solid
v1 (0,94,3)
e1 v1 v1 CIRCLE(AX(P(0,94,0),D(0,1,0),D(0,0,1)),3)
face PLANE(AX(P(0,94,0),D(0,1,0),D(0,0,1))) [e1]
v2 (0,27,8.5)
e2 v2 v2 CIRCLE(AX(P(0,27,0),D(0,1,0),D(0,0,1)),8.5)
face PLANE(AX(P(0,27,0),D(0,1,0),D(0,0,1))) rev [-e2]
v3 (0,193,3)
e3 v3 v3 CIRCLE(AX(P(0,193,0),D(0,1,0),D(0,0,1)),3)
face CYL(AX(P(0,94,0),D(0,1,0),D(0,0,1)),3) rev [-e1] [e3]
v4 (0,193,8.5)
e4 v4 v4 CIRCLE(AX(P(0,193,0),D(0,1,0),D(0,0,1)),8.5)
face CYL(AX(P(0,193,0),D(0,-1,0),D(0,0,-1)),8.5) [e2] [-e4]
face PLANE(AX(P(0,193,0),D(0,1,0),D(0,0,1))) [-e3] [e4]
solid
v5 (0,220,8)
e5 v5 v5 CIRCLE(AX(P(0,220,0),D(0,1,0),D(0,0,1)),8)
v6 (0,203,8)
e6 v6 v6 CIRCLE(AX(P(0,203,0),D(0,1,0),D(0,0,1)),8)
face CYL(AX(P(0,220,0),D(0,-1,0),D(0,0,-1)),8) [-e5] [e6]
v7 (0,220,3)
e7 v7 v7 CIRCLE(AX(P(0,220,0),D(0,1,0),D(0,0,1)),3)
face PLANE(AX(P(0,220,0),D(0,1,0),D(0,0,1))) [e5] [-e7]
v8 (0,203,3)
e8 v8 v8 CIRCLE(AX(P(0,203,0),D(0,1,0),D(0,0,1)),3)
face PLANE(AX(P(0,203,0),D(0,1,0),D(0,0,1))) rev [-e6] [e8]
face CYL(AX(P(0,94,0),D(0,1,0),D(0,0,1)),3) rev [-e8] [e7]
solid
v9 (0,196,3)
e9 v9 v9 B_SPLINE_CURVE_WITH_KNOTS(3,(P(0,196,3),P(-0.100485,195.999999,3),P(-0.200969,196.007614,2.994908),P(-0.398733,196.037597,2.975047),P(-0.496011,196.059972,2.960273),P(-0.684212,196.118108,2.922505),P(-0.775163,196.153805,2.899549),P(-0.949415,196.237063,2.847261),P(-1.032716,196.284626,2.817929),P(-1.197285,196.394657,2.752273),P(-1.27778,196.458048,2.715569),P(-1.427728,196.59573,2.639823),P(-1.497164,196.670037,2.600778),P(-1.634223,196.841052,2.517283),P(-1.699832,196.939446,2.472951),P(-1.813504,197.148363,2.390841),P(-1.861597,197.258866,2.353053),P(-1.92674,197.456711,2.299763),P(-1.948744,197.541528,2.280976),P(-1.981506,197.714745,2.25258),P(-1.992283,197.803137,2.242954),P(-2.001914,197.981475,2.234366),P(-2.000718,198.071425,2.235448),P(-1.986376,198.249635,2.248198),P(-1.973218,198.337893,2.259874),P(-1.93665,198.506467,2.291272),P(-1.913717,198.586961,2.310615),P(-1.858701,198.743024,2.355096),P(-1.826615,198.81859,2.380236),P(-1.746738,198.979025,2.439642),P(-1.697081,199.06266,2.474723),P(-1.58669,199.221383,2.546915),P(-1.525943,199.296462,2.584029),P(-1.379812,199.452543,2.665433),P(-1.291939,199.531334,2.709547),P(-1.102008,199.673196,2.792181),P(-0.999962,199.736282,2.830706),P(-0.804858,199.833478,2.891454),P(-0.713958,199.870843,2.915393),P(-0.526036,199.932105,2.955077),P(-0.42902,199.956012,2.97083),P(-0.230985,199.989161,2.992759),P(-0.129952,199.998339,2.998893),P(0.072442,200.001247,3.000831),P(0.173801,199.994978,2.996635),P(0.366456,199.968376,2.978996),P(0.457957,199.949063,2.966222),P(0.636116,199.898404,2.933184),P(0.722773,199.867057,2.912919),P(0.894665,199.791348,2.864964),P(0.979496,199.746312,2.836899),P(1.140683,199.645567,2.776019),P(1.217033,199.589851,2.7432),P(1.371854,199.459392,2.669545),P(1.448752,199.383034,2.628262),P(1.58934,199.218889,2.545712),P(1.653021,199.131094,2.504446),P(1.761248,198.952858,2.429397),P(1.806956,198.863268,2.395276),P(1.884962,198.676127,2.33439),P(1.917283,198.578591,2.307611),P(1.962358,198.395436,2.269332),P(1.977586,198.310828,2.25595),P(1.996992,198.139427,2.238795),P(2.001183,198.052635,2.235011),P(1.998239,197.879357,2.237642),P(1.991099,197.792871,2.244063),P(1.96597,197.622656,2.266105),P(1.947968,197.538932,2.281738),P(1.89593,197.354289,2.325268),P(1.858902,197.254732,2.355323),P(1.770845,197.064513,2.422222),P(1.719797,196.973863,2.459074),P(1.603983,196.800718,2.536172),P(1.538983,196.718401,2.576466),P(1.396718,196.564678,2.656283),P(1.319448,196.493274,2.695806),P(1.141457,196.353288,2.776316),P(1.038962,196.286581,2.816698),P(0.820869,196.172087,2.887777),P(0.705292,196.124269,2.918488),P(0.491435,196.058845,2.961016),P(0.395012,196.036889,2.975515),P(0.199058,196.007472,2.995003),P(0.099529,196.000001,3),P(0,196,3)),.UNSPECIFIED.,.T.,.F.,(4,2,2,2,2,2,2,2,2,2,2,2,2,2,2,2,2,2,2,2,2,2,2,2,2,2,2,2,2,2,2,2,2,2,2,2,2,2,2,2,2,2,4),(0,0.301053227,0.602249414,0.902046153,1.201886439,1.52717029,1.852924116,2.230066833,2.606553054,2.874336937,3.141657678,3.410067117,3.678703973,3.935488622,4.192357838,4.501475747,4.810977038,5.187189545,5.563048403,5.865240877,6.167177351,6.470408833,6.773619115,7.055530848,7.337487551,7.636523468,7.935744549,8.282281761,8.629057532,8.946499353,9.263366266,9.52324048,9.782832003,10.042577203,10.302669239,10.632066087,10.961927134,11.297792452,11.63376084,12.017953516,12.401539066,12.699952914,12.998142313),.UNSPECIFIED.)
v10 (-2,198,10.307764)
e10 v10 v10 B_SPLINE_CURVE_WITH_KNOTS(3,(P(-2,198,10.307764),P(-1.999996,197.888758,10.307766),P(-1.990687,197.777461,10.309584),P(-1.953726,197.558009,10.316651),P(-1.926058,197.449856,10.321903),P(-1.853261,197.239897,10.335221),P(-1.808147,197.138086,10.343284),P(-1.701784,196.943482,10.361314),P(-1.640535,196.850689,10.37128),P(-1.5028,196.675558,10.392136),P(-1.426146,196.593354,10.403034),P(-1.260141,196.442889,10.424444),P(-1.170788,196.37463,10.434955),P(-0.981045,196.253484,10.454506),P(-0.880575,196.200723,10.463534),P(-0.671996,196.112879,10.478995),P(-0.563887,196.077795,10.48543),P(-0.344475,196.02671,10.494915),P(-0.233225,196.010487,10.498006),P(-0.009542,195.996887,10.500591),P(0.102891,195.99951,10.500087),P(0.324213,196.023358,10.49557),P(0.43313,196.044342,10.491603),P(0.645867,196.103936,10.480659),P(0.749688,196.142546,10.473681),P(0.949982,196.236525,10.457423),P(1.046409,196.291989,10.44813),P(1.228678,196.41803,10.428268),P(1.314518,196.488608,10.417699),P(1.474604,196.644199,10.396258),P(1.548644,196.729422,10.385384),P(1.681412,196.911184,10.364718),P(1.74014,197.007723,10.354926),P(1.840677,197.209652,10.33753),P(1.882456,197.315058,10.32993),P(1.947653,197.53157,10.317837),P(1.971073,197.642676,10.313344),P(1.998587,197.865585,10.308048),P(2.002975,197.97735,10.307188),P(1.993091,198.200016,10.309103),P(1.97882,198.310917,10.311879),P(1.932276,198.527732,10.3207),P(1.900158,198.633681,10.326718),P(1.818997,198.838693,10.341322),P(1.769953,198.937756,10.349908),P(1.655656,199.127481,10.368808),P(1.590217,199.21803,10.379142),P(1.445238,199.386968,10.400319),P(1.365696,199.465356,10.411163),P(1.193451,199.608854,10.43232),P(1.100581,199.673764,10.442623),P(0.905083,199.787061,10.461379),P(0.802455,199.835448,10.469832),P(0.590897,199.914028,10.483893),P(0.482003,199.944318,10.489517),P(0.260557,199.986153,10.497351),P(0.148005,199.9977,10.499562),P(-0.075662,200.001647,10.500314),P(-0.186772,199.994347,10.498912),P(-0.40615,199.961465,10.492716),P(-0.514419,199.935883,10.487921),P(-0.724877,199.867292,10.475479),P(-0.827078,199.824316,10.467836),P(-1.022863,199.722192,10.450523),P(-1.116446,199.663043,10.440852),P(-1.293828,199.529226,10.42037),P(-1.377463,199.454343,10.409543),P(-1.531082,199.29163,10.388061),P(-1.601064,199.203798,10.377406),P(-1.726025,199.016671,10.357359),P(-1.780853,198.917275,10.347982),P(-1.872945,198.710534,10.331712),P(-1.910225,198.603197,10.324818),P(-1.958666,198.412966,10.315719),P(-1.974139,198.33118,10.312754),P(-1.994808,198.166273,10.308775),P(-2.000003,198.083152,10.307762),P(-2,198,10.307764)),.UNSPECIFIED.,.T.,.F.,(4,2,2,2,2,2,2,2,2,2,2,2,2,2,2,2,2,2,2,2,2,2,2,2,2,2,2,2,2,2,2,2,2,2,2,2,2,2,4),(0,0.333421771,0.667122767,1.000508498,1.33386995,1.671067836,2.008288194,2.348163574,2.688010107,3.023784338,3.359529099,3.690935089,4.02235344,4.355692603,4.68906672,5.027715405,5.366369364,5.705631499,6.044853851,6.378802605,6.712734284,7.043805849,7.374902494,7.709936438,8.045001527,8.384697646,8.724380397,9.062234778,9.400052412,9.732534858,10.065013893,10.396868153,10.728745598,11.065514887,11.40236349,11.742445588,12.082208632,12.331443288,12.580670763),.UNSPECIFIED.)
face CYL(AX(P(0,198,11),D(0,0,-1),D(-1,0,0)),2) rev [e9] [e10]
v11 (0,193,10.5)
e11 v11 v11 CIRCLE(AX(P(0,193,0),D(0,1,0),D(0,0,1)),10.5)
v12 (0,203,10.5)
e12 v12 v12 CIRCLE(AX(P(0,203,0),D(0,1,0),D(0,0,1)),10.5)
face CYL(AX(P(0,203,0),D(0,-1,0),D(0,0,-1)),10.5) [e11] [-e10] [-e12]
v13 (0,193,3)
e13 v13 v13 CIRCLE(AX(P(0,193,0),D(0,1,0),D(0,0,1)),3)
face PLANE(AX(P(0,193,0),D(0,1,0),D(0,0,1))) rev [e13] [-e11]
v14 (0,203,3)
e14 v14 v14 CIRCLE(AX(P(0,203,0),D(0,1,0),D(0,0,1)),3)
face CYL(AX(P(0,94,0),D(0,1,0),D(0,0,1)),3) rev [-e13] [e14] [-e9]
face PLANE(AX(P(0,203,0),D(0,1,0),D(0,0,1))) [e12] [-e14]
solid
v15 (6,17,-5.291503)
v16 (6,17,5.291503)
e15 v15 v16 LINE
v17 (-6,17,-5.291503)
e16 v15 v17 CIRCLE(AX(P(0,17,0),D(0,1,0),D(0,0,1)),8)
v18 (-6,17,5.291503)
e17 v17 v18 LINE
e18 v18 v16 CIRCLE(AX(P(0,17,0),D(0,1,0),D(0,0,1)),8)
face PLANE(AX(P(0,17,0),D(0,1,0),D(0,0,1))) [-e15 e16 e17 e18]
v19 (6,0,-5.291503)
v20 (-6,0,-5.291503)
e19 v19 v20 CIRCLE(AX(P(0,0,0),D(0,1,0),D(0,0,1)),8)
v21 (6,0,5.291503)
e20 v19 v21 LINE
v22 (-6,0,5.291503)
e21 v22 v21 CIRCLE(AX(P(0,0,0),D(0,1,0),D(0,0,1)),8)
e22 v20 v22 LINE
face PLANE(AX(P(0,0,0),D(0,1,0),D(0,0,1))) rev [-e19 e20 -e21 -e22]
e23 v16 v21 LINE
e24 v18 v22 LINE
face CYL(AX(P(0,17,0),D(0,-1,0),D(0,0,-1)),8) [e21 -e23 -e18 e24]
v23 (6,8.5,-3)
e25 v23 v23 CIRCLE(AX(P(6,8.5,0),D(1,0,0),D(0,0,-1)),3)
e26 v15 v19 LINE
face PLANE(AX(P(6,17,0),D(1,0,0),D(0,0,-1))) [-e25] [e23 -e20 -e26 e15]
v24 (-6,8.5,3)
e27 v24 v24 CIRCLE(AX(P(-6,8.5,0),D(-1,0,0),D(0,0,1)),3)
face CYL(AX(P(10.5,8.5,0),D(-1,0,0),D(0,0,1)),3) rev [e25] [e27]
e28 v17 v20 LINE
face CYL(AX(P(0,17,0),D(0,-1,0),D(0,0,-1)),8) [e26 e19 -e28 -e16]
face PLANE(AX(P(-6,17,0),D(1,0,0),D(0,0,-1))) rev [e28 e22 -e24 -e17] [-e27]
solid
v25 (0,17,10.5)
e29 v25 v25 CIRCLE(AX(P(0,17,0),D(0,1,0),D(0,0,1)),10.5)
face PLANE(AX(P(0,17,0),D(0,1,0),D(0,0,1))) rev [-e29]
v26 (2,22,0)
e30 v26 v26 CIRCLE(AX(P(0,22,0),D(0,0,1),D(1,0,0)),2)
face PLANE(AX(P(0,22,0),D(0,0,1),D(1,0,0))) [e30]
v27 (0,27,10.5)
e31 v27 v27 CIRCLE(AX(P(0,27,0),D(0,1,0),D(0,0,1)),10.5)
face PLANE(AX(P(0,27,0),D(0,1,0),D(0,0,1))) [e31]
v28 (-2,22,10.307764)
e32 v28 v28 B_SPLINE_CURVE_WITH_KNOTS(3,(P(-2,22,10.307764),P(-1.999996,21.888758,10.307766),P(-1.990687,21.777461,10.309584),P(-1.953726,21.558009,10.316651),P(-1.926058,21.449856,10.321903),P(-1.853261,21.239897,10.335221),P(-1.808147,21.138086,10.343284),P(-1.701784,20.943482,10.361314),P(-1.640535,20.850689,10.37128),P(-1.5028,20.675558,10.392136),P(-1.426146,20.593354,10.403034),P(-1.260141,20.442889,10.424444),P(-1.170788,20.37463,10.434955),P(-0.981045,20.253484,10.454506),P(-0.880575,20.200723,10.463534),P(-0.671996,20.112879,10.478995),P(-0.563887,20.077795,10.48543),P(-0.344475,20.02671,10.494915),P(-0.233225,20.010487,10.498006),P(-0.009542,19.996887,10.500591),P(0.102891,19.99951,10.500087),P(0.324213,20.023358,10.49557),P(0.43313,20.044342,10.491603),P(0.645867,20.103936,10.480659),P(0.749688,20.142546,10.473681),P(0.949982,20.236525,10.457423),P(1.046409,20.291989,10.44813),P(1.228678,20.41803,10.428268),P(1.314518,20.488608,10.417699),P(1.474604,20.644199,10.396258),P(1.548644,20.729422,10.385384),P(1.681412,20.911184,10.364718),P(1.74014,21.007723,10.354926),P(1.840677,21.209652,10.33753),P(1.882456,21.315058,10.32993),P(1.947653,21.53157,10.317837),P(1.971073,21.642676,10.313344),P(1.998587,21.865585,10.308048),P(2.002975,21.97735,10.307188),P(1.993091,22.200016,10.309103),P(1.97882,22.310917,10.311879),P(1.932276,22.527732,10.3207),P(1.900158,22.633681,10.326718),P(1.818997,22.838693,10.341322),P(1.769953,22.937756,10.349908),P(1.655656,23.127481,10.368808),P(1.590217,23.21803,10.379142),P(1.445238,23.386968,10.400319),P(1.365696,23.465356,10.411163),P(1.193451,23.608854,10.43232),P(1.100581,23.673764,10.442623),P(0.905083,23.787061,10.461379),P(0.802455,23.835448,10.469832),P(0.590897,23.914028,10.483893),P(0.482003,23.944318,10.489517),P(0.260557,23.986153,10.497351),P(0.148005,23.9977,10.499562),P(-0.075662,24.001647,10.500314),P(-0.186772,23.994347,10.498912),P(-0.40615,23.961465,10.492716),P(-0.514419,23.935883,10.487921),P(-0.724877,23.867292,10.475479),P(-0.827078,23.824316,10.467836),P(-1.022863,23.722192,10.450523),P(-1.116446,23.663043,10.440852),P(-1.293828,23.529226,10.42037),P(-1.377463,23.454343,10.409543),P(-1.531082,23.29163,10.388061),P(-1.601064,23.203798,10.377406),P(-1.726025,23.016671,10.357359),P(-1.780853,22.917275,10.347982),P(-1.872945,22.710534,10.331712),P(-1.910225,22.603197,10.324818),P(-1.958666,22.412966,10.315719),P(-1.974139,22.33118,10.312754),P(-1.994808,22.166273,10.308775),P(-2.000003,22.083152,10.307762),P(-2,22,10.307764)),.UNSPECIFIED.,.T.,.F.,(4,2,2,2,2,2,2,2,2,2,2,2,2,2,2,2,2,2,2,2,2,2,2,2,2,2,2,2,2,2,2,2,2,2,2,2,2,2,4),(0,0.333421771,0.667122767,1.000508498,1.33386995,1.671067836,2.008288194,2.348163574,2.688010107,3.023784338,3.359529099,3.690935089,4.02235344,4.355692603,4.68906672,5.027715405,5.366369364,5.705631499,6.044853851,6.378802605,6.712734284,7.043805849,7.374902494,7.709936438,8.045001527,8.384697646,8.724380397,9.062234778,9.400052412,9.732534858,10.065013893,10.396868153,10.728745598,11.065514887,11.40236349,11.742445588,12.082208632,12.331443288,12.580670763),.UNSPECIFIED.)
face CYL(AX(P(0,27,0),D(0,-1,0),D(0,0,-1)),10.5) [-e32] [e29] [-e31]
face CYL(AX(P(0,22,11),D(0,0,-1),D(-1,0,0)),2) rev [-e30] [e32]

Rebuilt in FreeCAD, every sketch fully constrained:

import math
import FreeCAD as App
import Part
import Sketcher

V = App.Vector

doc = App.newDocument("Part")
params = doc.addObject("Spreadsheet::Sheet", "Params")
for row, (alias, value) in enumerate([
    ("sketch1_diameter", "16 mm"),
    ("pad1_length", "17 mm"),
    ("sketch2_radius", "8 mm"),
    ("pocket1_length", "17 mm"),
    ("sketch3_diameter", "6 mm"),
    ("sketch4_diameter", "21 mm"),
    ("pad2_length", "10 mm"),
    ("sketch5_diameter", "17 mm"),
    ("pad3_length", "166 mm"),
    ("sketch6_diameter", "21 mm"),
    ("pad4_length", "10 mm"),
    ("sketch7_diameter", "16 mm"),
    ("pad5_length", "17 mm"),
    ("sketch8_diameter", "6 mm"),
    ("pad6_length", "126 mm"),
    ("sketch9_diameter", "4 mm"),
    ("pad7_length", "11 mm"),
], start=1):
    params.set(f"A{row}", alias)
    params.set(f"B{row}", "=" + value)
    params.setAlias(f"B{row}", alias)

body = doc.addObject("PartDesign::Body", "Body")

# Sketch on XZ plane
sketch1 = body.newObject("Sketcher::SketchObject", "Sketch")
sketch1.AttachmentSupport = (doc.getObject("XZ_Plane"), [""])
sketch1.MapMode = "FlatFace"
sketch1.addGeometry(Part.Circle(V(0, 0, 0), V(0, 0, 1), 8), False)
sketch1.addConstraint([
    Sketcher.Constraint("Coincident", 0, 3, -1, 1),
    Sketcher.Constraint("Diameter", 0, 16.0),
])
sketch1.setExpression("Constraints[1]", "Params.sketch1_diameter")
pad1 = body.newObject("PartDesign::Pad", "Pad")
pad1.Profile = sketch1
pad1.setExpression("Length", "Params.pad1_length")
pad1.Reversed = True

# Sketch on XZ plane
sketch2 = body.newObject("Sketcher::SketchObject", "Sketch001")
sketch2.AttachmentSupport = (doc.getObject("XZ_Plane"), [""])
sketch2.MapMode = "FlatFace"
sketch2.addGeometry([
    Part.ArcOfCircle(Part.Circle(V(0, 0, 0), V(0, 0, 1), 8), math.radians(138.590378), math.radians(221.409622)),  # 0
    Part.LineSegment(V(-6, -5.291503, 0), V(-6, 5.291503, 0)),  # 1
    Part.LineSegment(V(6, 5.291503, 0), V(6, -5.291503, 0)),  # 2
    Part.ArcOfCircle(Part.Circle(V(0, 0, 0), V(0, 0, 1), 8), math.radians(-41.409622), math.radians(0)),  # 3
    Part.ArcOfCircle(Part.Circle(V(0, 0, 0), V(0, 0, 1), 8), math.radians(0), math.radians(41.409622)),  # 4
], False)
sketch2.addConstraint([
    Sketcher.Constraint("Coincident", 0, 1, 1, 2),
    Sketcher.Constraint("Coincident", 1, 1, 0, 2),
    Sketcher.Constraint("Coincident", 2, 2, 3, 1),
    Sketcher.Constraint("Tangent", 3, 2, 4, 1),
    Sketcher.Constraint("Coincident", 4, 2, 2, 1),
    Sketcher.Constraint("Vertical", 1),
    Sketcher.Constraint("Vertical", 2),
    Sketcher.Constraint("Coincident", 0, 3, -1, 1),
    Sketcher.Constraint("Coincident", 3, 3, -1, 1),
    Sketcher.Constraint("Equal", 0, 3),
    Sketcher.Constraint("Equal", 3, 4),
    Sketcher.Constraint("PointOnObject", 3, 2, -1),
    Sketcher.Constraint("Horizontal", 1, 1, 2, 2),
    Sketcher.Constraint("Radius", 0, 8.0),
    Sketcher.Constraint("DistanceX", 0, 1, -1, 1, 6.0),
])
sketch2.setExpression("Constraints[13]", "Params.sketch2_radius")
pocket1 = body.newObject("PartDesign::Pocket", "Pocket")
pocket1.Profile = sketch2
pocket1.setExpression("Length", "Params.pocket1_length")

# Sketch on YZ plane
sketch3 = body.newObject("Sketcher::SketchObject", "Sketch002")
sketch3.AttachmentSupport = (doc.getObject("YZ_Plane"), [""])
sketch3.MapMode = "FlatFace"
sketch3.AttachmentOffset = App.Placement(V(0, 0, -6), App.Rotation())
sketch3.addGeometry(Part.Circle(V(8.5, 0, 0), V(0, 0, 1), 3), False)
sketch3.addConstraint([
    Sketcher.Constraint("PointOnObject", 0, 3, -1),
    Sketcher.Constraint("Diameter", 0, 6.0),
    Sketcher.Constraint("DistanceX", -1, 1, 0, 3, 8.5),
])
sketch3.setExpression("Constraints[1]", "Params.sketch3_diameter")
pocket2 = body.newObject("PartDesign::Pocket", "Pocket001")
pocket2.Profile = sketch3
pocket2.Type = "ThroughAll"
pocket2.Reversed = True
body2 = doc.addObject("PartDesign::Body", "Body001")

# Sketch on XZ plane
sketch4 = body2.newObject("Sketcher::SketchObject", "Sketch003")
sketch4.AttachmentSupport = (doc.getObject("XZ_Plane001"), [""])
sketch4.MapMode = "FlatFace"
sketch4.AttachmentOffset = App.Placement(V(0, 0, -17), App.Rotation())
sketch4.addGeometry(Part.Circle(V(0, 0, 0), V(0, 0, 1), 10.5), False)
sketch4.addConstraint([
    Sketcher.Constraint("Coincident", 0, 3, -1, 1),
    Sketcher.Constraint("Diameter", 0, 21.0),
])
sketch4.setExpression("Constraints[1]", "Params.sketch4_diameter")
pad2 = body2.newObject("PartDesign::Pad", "Pad001")
pad2.Profile = sketch4
pad2.setExpression("Length", "Params.pad2_length")
pad2.Reversed = True
body3 = doc.addObject("PartDesign::Body", "Body002")

# Sketch on XZ plane
sketch5 = body3.newObject("Sketcher::SketchObject", "Sketch004")
sketch5.AttachmentSupport = (doc.getObject("XZ_Plane002"), [""])
sketch5.MapMode = "FlatFace"
sketch5.AttachmentOffset = App.Placement(V(0, 0, -27), App.Rotation())
sketch5.addGeometry(Part.Circle(V(0, 0, 0), V(0, 0, 1), 8.5), False)
sketch5.addConstraint([
    Sketcher.Constraint("Coincident", 0, 3, -1, 1),
    Sketcher.Constraint("Diameter", 0, 17.0),
])
sketch5.setExpression("Constraints[1]", "Params.sketch5_diameter")
pad3 = body3.newObject("PartDesign::Pad", "Pad002")
pad3.Profile = sketch5
pad3.setExpression("Length", "Params.pad3_length")
pad3.Reversed = True
body4 = doc.addObject("PartDesign::Body", "Body003")

# Sketch on XZ plane
sketch6 = body4.newObject("Sketcher::SketchObject", "Sketch005")
sketch6.AttachmentSupport = (doc.getObject("XZ_Plane003"), [""])
sketch6.MapMode = "FlatFace"
sketch6.AttachmentOffset = App.Placement(V(0, 0, -193), App.Rotation())
sketch6.addGeometry(Part.Circle(V(0, 0, 0), V(0, 0, 1), 10.5), False)
sketch6.addConstraint([
    Sketcher.Constraint("Coincident", 0, 3, -1, 1),
    Sketcher.Constraint("Diameter", 0, 21.0),
])
sketch6.setExpression("Constraints[1]", "Params.sketch6_diameter")
pad4 = body4.newObject("PartDesign::Pad", "Pad003")
pad4.Profile = sketch6
pad4.setExpression("Length", "Params.pad4_length")
pad4.Reversed = True
body5 = doc.addObject("PartDesign::Body", "Body004")

# Sketch on XZ plane
sketch7 = body5.newObject("Sketcher::SketchObject", "Sketch006")
sketch7.AttachmentSupport = (doc.getObject("XZ_Plane004"), [""])
sketch7.MapMode = "FlatFace"
sketch7.AttachmentOffset = App.Placement(V(0, 0, -203), App.Rotation())
sketch7.addGeometry(Part.Circle(V(0, 0, 0), V(0, 0, 1), 8), False)
sketch7.addConstraint([
    Sketcher.Constraint("Coincident", 0, 3, -1, 1),
    Sketcher.Constraint("Diameter", 0, 16.0),
])
sketch7.setExpression("Constraints[1]", "Params.sketch7_diameter")
pad5 = body5.newObject("PartDesign::Pad", "Pad004")
pad5.Profile = sketch7
pad5.setExpression("Length", "Params.pad5_length")
pad5.Reversed = True
body6 = doc.addObject("PartDesign::Body", "Body005")

# Sketch on XZ plane
sketch8 = body6.newObject("Sketcher::SketchObject", "Sketch007")
sketch8.AttachmentSupport = (doc.getObject("XZ_Plane005"), [""])
sketch8.MapMode = "FlatFace"
sketch8.AttachmentOffset = App.Placement(V(0, 0, -220), App.Rotation())
sketch8.addGeometry(Part.Circle(V(0, 0, 0), V(0, 0, 1), 3), False)
sketch8.addConstraint([
    Sketcher.Constraint("Coincident", 0, 3, -1, 1),
    Sketcher.Constraint("Diameter", 0, 6.0),
])
sketch8.setExpression("Constraints[1]", "Params.sketch8_diameter")
pad6 = body6.newObject("PartDesign::Pad", "Pad005")
pad6.Profile = sketch8
pad6.setExpression("Length", "Params.pad6_length")
doc.recompute()

body7 = doc.addObject("PartDesign::Body", "Body006")
body7.BaseFeature = body6
boolean = body3.newObject("PartDesign::Boolean", "Boolean")
boolean.Type = "Cut"
boolean.addObjects([body7])
doc.recompute()

body8 = doc.addObject("PartDesign::Body", "Body007")
body8.BaseFeature = body6
boolean2 = body4.newObject("PartDesign::Boolean", "Boolean001")
boolean2.Type = "Cut"
boolean2.addObjects([body8])
doc.recompute()

boolean3 = body5.newObject("PartDesign::Boolean", "Boolean002")
boolean3.Type = "Cut"
boolean3.addObjects([body6])
body9 = doc.addObject("PartDesign::Body", "Body008")
body9.AllowCompound = True

# Sketch on XY plane
sketch9 = body9.newObject("Sketcher::SketchObject", "Sketch008")
sketch9.AttachmentSupport = (doc.getObject("XY_Plane008"), [""])
sketch9.MapMode = "FlatFace"
sketch9.addGeometry([
    Part.Circle(V(0, 198, 0), V(0, 0, 1), 2),
    Part.Circle(V(0, 22, 0), V(0, 0, 1), 2),
], False)
sketch9.addConstraint([
    Sketcher.Constraint("Equal", 0, 1),
    Sketcher.Constraint("PointOnObject", 0, 3, -2),
    Sketcher.Constraint("PointOnObject", 1, 3, -2),
    Sketcher.Constraint("Diameter", 0, 4.0),
    Sketcher.Constraint("DistanceY", -1, 1, 0, 3, 198.0),
    Sketcher.Constraint("DistanceY", -1, 1, 1, 3, 22.0),
])
sketch9.setExpression("Constraints[3]", "Params.sketch9_diameter")
pad7 = body9.newObject("PartDesign::Pad", "Pad006")
pad7.Profile = sketch9
pad7.setExpression("Length", "Params.pad7_length")
doc.recompute()

body10 = doc.addObject("PartDesign::Body", "Body009")
body10.BaseFeature = body9
boolean4 = body2.newObject("PartDesign::Boolean", "Boolean003")
boolean4.Type = "Cut"
boolean4.addObjects([body10])
doc.recompute()

boolean5 = body4.newObject("PartDesign::Boolean", "Boolean004")
boolean5.Type = "Cut"
boolean5.addObjects([body9])

doc.recompute()
